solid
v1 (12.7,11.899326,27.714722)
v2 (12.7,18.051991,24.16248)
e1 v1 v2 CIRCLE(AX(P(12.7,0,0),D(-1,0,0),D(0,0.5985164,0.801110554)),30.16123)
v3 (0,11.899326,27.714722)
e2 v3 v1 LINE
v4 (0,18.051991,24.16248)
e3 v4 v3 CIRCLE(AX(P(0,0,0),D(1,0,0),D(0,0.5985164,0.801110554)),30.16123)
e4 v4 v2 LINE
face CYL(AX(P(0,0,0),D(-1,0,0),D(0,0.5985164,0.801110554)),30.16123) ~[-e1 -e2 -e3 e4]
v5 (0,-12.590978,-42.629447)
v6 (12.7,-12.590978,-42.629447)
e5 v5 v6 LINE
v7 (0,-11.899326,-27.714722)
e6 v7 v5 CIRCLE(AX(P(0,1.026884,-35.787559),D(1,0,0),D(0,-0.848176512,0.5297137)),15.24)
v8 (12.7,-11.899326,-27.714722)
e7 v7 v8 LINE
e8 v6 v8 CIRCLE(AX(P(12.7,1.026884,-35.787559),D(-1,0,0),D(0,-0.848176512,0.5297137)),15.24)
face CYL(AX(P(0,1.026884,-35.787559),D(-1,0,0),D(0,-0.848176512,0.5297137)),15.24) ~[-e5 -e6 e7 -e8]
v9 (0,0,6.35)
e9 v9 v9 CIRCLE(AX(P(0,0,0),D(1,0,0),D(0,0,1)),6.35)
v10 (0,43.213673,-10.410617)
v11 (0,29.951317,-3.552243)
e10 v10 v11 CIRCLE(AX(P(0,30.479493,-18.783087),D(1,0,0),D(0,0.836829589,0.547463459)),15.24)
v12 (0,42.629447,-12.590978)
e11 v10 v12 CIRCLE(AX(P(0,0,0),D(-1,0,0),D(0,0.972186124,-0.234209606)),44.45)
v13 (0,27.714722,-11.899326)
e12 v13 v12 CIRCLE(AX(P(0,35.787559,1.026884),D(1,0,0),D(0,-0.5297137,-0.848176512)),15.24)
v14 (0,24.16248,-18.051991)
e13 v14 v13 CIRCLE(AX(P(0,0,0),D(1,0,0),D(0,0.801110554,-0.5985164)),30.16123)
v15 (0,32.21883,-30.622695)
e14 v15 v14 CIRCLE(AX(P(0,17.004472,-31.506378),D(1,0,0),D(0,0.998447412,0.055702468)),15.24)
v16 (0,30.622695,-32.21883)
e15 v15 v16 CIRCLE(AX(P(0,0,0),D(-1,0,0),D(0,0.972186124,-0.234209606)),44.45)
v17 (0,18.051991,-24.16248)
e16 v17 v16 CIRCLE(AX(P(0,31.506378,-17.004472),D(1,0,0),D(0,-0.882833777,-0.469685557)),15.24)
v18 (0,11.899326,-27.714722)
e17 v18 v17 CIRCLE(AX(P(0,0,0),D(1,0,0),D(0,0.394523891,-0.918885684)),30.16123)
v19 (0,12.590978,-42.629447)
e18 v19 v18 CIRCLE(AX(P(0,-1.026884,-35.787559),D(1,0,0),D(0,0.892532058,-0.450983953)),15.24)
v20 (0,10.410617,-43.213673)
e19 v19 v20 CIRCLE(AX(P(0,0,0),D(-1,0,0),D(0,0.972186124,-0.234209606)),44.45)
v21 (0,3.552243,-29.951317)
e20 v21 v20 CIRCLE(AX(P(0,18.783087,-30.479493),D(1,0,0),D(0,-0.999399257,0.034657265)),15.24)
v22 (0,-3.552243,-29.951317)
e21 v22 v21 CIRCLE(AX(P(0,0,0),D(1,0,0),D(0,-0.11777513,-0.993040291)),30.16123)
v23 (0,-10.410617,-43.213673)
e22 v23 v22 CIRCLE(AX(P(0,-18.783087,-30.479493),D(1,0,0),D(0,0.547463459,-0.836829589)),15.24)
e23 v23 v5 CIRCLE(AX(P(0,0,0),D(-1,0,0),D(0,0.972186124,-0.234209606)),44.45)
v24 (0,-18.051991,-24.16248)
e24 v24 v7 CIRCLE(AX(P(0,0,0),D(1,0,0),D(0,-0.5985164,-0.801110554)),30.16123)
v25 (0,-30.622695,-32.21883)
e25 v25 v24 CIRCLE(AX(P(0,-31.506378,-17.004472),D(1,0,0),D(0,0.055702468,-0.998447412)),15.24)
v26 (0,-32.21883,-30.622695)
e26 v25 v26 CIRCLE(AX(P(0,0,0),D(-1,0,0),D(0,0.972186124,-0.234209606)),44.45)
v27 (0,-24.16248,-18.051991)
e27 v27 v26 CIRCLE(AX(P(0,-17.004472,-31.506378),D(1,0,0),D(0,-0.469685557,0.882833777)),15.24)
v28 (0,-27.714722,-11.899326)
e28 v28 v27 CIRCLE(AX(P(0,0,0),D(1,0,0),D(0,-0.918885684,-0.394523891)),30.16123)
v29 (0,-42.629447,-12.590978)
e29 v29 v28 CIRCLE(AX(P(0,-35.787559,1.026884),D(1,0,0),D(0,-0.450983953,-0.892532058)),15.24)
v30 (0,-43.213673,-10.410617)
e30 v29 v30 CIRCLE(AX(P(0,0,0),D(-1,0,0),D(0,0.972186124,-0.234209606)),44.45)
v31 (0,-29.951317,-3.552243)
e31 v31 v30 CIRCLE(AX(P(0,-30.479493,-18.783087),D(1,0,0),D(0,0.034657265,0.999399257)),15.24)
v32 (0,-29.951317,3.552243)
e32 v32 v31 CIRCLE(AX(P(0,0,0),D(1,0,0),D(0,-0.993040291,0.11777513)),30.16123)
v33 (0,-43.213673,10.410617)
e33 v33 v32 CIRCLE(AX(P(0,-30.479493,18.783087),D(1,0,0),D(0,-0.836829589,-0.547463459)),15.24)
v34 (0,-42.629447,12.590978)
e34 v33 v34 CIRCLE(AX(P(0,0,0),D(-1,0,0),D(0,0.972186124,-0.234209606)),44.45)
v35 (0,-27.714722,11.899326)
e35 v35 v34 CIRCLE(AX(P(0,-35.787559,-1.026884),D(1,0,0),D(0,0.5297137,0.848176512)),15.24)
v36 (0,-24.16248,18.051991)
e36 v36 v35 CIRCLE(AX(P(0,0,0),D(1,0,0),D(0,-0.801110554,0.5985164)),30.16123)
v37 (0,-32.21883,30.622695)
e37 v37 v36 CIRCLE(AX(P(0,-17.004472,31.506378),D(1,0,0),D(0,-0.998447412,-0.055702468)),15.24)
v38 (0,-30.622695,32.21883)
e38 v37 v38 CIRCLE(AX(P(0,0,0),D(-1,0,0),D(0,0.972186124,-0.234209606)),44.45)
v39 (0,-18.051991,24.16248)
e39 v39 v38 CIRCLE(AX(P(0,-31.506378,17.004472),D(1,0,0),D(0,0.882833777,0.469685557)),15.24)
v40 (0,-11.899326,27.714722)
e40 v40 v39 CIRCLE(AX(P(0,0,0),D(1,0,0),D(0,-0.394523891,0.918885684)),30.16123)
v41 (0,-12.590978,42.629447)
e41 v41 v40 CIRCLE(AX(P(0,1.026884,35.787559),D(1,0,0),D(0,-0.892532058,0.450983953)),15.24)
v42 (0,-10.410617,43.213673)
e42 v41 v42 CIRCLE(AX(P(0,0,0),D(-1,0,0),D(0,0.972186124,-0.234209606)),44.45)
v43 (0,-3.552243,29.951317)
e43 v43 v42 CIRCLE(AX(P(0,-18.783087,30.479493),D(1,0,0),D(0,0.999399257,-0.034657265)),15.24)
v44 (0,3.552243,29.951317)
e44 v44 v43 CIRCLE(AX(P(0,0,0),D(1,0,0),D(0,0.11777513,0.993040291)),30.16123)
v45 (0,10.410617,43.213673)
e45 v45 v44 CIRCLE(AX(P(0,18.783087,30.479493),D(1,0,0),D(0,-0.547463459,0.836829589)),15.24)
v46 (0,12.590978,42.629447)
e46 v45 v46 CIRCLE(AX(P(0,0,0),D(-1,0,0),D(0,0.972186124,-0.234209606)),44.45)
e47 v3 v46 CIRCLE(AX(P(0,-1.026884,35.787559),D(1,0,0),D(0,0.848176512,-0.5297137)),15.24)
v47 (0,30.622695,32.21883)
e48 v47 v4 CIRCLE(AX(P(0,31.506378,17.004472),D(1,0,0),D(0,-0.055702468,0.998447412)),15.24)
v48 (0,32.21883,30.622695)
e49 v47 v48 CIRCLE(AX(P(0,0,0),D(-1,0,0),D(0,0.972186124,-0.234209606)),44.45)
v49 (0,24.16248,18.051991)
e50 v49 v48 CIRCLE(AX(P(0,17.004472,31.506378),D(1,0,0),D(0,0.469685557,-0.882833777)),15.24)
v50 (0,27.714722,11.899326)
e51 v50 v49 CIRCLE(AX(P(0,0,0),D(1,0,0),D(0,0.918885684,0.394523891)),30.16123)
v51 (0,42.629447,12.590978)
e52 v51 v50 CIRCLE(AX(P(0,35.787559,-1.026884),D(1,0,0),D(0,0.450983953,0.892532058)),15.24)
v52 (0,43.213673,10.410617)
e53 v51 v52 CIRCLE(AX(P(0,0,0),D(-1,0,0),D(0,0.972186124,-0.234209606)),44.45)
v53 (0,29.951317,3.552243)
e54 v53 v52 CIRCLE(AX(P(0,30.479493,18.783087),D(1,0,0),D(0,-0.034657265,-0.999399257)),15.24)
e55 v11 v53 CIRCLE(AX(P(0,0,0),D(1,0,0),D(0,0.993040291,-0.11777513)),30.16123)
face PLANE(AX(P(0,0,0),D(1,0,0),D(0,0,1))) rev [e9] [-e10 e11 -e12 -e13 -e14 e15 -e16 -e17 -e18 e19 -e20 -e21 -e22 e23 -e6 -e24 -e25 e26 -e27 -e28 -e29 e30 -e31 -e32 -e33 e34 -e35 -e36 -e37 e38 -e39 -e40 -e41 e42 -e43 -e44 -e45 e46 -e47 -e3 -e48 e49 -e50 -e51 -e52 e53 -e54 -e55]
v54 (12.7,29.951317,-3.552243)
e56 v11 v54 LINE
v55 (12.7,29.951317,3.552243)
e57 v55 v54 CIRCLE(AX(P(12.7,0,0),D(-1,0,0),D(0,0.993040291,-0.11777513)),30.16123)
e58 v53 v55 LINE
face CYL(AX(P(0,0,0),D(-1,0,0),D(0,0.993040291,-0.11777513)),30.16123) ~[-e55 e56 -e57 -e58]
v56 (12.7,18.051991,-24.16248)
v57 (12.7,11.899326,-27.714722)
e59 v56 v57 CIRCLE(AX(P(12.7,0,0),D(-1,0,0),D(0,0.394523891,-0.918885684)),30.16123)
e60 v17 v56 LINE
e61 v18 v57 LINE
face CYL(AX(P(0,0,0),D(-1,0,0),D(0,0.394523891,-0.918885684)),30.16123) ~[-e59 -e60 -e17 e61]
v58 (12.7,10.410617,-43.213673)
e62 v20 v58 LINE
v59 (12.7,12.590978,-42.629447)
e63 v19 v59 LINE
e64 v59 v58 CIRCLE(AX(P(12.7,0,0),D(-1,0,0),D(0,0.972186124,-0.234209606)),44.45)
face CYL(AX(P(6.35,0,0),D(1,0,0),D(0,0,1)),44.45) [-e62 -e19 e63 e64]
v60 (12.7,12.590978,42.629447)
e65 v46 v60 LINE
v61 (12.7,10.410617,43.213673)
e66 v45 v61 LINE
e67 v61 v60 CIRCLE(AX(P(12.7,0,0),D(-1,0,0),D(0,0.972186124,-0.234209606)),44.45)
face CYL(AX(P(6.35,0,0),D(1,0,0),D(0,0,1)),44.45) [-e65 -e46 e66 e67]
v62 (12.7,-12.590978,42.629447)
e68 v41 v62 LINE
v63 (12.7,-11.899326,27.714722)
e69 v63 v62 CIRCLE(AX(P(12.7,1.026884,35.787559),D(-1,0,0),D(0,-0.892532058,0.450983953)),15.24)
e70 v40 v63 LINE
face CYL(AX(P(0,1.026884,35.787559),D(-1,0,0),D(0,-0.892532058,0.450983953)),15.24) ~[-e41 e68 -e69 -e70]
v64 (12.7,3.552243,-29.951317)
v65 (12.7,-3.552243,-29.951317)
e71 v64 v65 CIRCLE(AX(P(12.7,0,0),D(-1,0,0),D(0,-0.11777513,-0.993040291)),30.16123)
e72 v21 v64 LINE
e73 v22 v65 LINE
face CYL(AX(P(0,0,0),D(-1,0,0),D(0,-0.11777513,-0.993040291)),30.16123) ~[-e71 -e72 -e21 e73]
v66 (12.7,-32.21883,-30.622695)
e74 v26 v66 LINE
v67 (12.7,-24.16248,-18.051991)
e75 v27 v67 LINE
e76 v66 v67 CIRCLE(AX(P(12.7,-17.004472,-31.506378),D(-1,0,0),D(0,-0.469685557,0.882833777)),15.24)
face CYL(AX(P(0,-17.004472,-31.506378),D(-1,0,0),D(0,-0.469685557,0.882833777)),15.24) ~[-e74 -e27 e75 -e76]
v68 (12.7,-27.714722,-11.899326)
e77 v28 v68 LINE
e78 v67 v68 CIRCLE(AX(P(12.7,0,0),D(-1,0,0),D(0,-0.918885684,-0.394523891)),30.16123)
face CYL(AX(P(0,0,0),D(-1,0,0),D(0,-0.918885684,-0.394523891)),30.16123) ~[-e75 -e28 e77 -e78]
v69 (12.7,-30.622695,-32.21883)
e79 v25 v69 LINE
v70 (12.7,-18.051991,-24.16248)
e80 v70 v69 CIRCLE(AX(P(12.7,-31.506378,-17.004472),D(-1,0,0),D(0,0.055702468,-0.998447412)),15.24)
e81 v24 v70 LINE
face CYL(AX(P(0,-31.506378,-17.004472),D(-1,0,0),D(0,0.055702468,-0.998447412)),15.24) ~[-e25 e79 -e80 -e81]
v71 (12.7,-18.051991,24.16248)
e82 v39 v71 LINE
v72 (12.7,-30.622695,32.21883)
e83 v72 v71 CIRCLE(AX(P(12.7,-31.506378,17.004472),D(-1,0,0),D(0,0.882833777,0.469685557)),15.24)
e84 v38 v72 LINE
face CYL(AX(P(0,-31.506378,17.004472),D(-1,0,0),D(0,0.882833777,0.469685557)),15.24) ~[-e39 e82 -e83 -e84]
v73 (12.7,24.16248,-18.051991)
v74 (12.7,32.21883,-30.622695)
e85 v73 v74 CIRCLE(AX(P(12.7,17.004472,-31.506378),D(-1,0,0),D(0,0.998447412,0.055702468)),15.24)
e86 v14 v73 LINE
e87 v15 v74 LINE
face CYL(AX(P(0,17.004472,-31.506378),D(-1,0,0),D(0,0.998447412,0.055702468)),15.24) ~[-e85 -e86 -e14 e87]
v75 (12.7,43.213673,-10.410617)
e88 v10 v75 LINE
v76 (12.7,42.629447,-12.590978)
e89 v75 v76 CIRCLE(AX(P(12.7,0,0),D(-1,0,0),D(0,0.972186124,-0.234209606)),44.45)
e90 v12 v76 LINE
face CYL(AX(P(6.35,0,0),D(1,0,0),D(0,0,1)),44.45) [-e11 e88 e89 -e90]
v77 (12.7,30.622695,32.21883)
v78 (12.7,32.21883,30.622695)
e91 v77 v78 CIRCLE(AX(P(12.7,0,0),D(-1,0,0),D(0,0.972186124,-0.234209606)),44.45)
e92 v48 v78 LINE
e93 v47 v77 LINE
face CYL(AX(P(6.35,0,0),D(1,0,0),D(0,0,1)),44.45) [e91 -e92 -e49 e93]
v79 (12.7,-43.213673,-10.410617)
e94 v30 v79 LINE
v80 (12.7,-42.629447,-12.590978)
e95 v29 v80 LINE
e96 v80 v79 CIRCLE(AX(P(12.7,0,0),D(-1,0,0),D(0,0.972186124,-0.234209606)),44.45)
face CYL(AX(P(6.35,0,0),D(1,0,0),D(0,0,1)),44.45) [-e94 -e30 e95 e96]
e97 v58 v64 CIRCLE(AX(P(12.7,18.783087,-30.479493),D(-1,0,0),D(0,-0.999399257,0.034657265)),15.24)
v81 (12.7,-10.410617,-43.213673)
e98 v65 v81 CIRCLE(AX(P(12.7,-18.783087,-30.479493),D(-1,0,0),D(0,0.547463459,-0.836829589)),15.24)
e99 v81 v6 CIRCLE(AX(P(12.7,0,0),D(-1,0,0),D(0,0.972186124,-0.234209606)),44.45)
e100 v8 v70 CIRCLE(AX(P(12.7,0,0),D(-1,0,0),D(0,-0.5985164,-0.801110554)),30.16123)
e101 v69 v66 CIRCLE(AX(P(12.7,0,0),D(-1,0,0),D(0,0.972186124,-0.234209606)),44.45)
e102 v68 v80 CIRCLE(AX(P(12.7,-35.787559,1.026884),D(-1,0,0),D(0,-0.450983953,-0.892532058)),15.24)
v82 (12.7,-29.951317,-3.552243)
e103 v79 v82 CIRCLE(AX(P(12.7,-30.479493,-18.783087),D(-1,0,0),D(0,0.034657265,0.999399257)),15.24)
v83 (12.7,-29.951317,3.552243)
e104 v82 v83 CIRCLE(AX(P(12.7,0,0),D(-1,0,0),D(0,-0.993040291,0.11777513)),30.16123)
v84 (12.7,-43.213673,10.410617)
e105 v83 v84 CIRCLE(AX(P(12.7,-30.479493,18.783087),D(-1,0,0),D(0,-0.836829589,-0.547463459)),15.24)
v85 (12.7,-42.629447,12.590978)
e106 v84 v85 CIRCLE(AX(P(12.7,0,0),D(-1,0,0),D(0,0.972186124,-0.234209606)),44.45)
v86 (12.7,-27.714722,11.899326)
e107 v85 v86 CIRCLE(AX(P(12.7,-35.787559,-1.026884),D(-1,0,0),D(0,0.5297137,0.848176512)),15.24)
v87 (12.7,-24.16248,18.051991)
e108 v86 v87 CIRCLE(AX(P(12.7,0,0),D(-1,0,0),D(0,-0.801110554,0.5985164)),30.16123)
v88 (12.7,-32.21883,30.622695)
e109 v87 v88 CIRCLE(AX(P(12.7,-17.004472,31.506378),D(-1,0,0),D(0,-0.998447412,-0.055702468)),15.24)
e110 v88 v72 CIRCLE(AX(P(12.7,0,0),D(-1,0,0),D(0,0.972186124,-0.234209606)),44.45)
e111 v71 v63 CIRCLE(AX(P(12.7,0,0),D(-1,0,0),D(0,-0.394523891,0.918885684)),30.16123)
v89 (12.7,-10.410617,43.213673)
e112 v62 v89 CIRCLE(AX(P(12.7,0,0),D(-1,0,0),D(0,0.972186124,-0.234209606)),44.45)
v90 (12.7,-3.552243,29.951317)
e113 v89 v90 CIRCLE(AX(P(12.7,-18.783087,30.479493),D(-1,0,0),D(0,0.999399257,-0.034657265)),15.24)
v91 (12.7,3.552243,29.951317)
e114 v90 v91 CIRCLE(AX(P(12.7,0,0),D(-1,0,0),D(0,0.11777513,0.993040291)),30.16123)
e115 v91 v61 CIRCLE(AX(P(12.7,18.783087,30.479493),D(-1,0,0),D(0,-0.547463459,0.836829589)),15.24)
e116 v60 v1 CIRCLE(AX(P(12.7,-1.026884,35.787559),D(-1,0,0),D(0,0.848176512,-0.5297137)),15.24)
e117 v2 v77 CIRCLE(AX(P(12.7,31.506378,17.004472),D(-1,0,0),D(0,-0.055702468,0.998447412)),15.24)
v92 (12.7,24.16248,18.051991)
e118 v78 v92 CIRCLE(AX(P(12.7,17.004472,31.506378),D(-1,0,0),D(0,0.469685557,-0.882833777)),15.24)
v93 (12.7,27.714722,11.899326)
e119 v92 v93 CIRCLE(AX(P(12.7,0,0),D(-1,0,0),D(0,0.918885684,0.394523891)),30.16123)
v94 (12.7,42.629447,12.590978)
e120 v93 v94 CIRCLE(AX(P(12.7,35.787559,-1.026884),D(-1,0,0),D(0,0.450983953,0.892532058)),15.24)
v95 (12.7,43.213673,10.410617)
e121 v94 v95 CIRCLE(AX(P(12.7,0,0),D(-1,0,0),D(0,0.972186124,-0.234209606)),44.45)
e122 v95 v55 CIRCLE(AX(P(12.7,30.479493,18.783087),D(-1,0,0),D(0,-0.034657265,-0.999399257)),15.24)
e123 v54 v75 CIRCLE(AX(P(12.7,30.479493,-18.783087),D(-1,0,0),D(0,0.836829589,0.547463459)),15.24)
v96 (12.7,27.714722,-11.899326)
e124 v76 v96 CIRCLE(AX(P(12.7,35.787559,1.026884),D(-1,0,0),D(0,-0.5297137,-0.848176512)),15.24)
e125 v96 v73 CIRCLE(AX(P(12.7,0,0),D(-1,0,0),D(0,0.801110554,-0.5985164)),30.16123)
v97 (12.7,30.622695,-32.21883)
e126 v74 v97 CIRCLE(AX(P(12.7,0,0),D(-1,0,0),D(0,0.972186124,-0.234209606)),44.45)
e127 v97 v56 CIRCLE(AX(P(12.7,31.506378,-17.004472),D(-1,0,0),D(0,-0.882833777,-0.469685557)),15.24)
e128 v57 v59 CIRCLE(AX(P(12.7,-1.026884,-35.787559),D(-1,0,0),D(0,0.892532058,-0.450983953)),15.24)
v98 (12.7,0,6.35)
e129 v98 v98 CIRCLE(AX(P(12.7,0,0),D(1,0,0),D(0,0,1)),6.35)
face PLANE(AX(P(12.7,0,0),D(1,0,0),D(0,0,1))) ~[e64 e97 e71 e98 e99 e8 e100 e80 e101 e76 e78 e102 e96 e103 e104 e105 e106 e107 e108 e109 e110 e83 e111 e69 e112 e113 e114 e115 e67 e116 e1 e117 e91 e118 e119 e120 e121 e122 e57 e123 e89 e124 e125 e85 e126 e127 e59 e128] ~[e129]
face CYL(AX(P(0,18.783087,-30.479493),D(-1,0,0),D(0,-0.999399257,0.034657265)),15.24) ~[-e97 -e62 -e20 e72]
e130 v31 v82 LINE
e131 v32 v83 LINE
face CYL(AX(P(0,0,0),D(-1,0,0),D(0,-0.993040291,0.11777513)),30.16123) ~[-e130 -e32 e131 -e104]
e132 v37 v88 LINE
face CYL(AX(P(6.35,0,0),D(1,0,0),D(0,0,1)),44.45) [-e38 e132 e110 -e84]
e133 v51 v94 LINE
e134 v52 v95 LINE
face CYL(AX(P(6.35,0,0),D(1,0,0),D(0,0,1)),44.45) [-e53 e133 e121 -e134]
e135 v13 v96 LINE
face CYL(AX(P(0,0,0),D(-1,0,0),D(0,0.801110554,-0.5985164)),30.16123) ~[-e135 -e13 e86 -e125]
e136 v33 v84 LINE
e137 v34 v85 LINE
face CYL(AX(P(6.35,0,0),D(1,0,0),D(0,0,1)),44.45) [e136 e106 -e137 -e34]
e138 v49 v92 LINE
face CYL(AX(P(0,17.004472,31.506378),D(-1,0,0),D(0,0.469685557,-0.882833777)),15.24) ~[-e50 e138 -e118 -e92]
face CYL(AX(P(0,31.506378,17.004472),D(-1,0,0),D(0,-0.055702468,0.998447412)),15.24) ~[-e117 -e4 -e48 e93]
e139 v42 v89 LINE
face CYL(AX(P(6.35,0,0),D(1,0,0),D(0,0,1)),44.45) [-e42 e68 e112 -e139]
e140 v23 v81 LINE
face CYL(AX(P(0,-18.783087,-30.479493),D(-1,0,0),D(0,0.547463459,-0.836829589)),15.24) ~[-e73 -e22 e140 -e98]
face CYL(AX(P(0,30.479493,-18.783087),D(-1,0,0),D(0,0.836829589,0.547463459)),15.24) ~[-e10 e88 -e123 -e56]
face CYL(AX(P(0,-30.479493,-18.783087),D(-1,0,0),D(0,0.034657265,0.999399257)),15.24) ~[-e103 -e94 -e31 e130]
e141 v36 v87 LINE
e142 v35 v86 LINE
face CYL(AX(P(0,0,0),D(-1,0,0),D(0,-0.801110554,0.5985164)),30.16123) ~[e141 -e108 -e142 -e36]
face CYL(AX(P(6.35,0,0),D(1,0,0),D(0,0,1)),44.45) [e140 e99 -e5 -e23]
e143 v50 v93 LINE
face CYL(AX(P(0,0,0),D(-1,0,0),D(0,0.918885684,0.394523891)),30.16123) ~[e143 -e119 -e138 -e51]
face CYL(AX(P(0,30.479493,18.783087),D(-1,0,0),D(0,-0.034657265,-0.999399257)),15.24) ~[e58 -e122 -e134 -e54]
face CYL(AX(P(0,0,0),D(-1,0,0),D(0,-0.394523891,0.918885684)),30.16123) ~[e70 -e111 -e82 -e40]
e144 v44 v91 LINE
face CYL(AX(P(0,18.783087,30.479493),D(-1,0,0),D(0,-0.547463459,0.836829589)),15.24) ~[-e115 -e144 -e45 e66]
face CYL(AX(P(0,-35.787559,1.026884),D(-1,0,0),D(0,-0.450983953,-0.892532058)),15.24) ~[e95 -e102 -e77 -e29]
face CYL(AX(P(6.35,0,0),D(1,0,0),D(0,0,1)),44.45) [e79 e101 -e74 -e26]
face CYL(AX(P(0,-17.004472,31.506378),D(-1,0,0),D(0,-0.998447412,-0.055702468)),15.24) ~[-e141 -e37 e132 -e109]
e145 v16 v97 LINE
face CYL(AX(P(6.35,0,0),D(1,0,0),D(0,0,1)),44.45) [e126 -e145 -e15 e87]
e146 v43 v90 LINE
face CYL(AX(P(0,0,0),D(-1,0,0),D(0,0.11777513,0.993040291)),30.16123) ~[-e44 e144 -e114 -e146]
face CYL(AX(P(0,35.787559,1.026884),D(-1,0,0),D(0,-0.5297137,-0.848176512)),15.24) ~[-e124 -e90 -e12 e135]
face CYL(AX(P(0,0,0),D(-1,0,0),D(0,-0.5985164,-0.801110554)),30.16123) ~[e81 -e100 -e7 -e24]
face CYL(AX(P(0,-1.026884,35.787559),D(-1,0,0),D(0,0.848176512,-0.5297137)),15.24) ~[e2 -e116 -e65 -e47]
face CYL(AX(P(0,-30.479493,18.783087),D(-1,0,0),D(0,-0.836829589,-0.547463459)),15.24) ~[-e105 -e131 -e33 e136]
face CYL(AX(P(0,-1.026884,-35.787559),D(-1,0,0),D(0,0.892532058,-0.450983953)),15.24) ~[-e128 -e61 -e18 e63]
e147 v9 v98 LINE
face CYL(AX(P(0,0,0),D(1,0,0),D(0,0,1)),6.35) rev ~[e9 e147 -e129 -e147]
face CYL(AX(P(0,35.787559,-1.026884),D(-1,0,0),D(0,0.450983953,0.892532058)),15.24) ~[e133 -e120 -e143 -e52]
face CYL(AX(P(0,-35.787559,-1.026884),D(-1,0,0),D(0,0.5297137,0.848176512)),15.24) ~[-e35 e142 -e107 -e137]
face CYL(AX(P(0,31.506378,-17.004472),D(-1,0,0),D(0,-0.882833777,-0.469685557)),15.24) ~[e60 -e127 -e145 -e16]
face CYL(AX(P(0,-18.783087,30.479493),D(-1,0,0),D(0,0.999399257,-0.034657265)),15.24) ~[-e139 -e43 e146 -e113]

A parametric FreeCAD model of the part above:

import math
import FreeCAD as App
import Part
import Sketcher
from FreeCAD import Vector
Q = App.Units.Quantity

doc = App.newDocument("Part")
body = doc.addObject("PartDesign::Body", "Body")

# Sketch on XZ plane
sketch1 = doc.addObject("Sketcher::SketchObject", "Sketch")
body.addObject(sketch1)
sketch1.AttachmentSupport = (doc.XZ_Plane, [""])
sketch1.MapMode = "FlatFace"
sketch1.addGeometry([
    Part.LineSegment(Vector(0, -44, 0), Vector(0, 0, 0)),
    Part.LineSegment(Vector(0, 0, 0), Vector(13, 0, 0)),
    Part.LineSegment(Vector(13, 0, 0), Vector(13, -44, 0)),
    Part.LineSegment(Vector(13, -44, 0), Vector(0, -44, 0)),
], False)
sketch1.addConstraint([
    Sketcher.Constraint("Coincident", 0, 2, 1, 1),
    Sketcher.Constraint("Coincident", 1, 2, 2, 1),
    Sketcher.Constraint("Coincident", 2, 2, 3, 1),
    Sketcher.Constraint("Coincident", 3, 2, 0, 1),
    Sketcher.Constraint("Vertical", 0),
    Sketcher.Constraint("Horizontal", 1),
    Sketcher.Constraint("Vertical", 2),
    Sketcher.Constraint("Horizontal", 3),
    Sketcher.Constraint("Coincident", 0, 2, -1, 1),
    Sketcher.Constraint("DistanceX", 1, 1, 1, 2, Q("0.5 in")),
    Sketcher.Constraint("DistanceY", 0, 1, 0, 2, Q("1.75 in")),
])
revolution = doc.addObject("PartDesign::Revolution", "Revolution")
body.addObject(revolution)
revolution.Profile = sketch1
revolution.ReferenceAxis = (sketch1, ["H_Axis"])
revolution.Angle = 360

# Sketch on YZ plane
sketch2 = doc.addObject("Sketcher::SketchObject", "Sketch001")
body.addObject(sketch2)
sketch2.AttachmentSupport = (doc.YZ_Plane, [""])
sketch2.MapMode = "FlatFace"
sketch2.addGeometry([
    Part.ArcOfCircle(Part.Circle(Vector(0, 0, 0), Vector(0, 0, 1), 30), math.radians(-6.76), math.radians(6.76)),
    Part.ArcOfCircle(Part.Circle(Vector(30, -19, 0), Vector(0, 0, 1), 15), math.radians(33), math.radians(92)),
    Part.ArcOfCircle(Part.Circle(Vector(0, 0, 0), Vector(0, 0, 1), 44), math.radians(-14), math.radians(14)),
    Part.ArcOfCircle(Part.Circle(Vector(30, 19, 0), Vector(0, 0, 1), 15), math.radians(-92), math.radians(-33)),
], False)
sketch2.addConstraint([
    Sketcher.Constraint("Coincident", 0, 1, 1, 2),
    Sketcher.Constraint("Coincident", 1, 1, 2, 1),
    Sketcher.Constraint("Coincident", 2, 2, 3, 2),
    Sketcher.Constraint("Coincident", 3, 1, 0, 2),
    Sketcher.Constraint("Coincident", 0, 3, -1, 1),
    Sketcher.Constraint("Coincident", 2, 3, -1, 1),
    Sketcher.Constraint("Equal", 1, 3),
    Sketcher.Constraint("Symmetric", 1, 3, 3, 3, -1),
    Sketcher.Constraint("Radius", 1, Q("0.6 in")),
    Sketcher.Constraint("Radius", 2, Q("1.751 in")),
    Sketcher.Constraint("Radius", 0, 30.16123),
    Sketcher.Constraint("DistanceY", 1, 1, 0, 1, 6.887502),
    Sketcher.Constraint("DistanceY", 0, 1, 3, 3, 22.33533),
])
pocket1 = doc.addObject("PartDesign::Pocket", "Pocket")
body.addObject(pocket1)
pocket1.Profile = sketch2
pocket1.Type = "ThroughAll"
pocket1.Reversed = True
doc.recompute()

polarpattern = doc.addObject("PartDesign::PolarPattern", "PolarPattern")
body.addObject(polarpattern)
polarpattern.Originals = [pocket1]
polarpattern.Axis = (doc.X_Axis, [""])
polarpattern.Angle = 360
polarpattern.Occurrences = 12
body.Tip = polarpattern

# Sketch on YZ plane
sketch3 = doc.addObject("Sketcher::SketchObject", "Sketch002")
body.addObject(sketch3)
sketch3.AttachmentSupport = (doc.YZ_Plane, [""])
sketch3.MapMode = "FlatFace"
sketch3.addGeometry(Part.Circle(Vector(0, 0, 0), Vector(0, 0, 1), 6), False)
sketch3.addConstraint([
    Sketcher.Constraint("Coincident", 0, 3, -1, 1),
    Sketcher.Constraint("Diameter", 0, Q("0.5 in")),
])
pocket2 = doc.addObject("PartDesign::Pocket", "Pocket001")
body.addObject(pocket2)
pocket2.Profile = sketch3
pocket2.Length = 101.600102
pocket2.Midplane = True

doc.recompute()
